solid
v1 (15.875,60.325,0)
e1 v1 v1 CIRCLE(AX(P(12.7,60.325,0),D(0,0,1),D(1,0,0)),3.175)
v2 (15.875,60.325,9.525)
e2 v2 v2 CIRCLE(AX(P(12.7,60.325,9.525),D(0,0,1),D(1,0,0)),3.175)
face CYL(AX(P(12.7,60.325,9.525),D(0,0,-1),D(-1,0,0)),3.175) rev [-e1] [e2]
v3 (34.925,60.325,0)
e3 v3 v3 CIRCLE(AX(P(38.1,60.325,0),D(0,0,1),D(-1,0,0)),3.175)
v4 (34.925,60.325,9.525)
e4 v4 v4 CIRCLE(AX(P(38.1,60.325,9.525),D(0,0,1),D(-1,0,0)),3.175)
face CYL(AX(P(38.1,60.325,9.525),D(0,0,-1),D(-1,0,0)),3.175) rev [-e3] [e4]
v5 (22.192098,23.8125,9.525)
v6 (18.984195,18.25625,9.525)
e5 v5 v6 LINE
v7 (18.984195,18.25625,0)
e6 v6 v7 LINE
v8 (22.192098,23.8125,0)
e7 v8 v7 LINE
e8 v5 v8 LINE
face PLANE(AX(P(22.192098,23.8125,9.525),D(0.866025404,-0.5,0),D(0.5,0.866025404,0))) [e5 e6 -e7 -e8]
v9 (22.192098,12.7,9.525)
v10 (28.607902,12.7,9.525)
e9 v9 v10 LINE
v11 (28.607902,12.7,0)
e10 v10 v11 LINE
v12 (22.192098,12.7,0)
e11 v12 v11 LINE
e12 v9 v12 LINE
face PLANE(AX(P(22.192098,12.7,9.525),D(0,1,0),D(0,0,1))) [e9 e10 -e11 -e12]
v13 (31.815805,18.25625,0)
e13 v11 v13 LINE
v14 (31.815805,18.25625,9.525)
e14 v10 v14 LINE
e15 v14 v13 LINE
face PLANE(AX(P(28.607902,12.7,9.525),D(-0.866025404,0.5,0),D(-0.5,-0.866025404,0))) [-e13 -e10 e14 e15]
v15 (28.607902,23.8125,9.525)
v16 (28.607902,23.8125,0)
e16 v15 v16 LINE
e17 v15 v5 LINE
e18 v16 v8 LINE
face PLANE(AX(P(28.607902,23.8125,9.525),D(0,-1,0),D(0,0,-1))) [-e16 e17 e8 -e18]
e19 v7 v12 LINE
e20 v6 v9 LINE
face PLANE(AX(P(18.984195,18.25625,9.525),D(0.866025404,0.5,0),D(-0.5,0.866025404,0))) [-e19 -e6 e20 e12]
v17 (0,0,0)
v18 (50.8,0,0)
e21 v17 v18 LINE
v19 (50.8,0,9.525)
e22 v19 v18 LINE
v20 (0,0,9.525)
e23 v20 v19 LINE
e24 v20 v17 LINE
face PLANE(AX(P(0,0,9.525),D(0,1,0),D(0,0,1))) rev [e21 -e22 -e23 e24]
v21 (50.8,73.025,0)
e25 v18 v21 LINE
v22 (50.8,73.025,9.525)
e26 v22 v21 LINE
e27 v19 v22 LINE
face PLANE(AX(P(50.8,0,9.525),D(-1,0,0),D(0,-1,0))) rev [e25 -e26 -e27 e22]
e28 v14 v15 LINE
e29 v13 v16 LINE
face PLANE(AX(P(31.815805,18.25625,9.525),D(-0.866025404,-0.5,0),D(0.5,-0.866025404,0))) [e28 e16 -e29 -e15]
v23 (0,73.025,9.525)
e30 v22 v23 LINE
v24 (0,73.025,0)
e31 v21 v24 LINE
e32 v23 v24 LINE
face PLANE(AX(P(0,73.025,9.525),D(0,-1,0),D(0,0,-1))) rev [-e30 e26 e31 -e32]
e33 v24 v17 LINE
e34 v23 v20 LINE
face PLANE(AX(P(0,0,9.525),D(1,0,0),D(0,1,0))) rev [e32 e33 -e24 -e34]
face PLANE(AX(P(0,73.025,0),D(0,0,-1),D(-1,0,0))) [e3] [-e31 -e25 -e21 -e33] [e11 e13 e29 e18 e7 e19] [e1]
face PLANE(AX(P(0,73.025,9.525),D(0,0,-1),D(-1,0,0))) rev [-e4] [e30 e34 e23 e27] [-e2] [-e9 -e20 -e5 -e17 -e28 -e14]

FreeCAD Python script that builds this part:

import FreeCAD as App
import Part
import Sketcher

V = App.Vector
Q = App.Units.Quantity

doc = App.newDocument("Part")
body = doc.addObject("PartDesign::Body", "Body")

sketch1 = doc.addObject("Sketcher::SketchObject", "Sketch")
body.addObject(sketch1)
sketch1.AttachmentSupport = (doc.XY_Plane, [""])
sketch1.MapMode = "FlatFace"
sketch1.addGeometry([
    Part.LineSegment(V(0, 73, 0), V(0, 0, 0)),
    Part.LineSegment(V(0, 0, 0), V(50.8, 0, 0)),
    Part.LineSegment(V(50.8, 0, 0), V(50.8, 73, 0)),
    Part.LineSegment(V(50.8, 73, 0), V(0, 73, 0)),
    Part.LineSegment(V(28.6, 23.8, 0), V(31.8, 18.3, 0)),
    Part.LineSegment(V(31.8, 18.3, 0), V(28.6, 12.7, 0)),
    Part.LineSegment(V(28.6, 12.7, 0), V(22.2, 12.7, 0)),
    Part.LineSegment(V(22.2, 12.7, 0), V(19, 18.3, 0)),
    Part.LineSegment(V(19, 18.3, 0), V(22.2, 23.8, 0)),
    Part.LineSegment(V(22.2, 23.8, 0), V(28.6, 23.8, 0)),
    Part.Circle(V(12.7, 60.3, 0), V(0, 0, 1), 3.2),
    Part.Circle(V(38.1, 60.3, 0), V(0, 0, 1), 3.2),
], False)
sketch1.addConstraint([
    Sketcher.Constraint("Coincident", 0, 2, 1, 1),
    Sketcher.Constraint("Coincident", 1, 2, 2, 1),
    Sketcher.Constraint("Coincident", 2, 2, 3, 1),
    Sketcher.Constraint("Coincident", 3, 2, 0, 1),
    Sketcher.Constraint("Coincident", 4, 2, 5, 1),
    Sketcher.Constraint("Coincident", 5, 2, 6, 1),
    Sketcher.Constraint("Coincident", 6, 2, 7, 1),
    Sketcher.Constraint("Coincident", 7, 2, 8, 1),
    Sketcher.Constraint("Coincident", 8, 2, 9, 1),
    Sketcher.Constraint("Coincident", 9, 2, 4, 1),
    Sketcher.Constraint("Vertical", 0),
    Sketcher.Constraint("Horizontal", 1),
    Sketcher.Constraint("Vertical", 2),
    Sketcher.Constraint("Horizontal", 3),
    Sketcher.Constraint("Horizontal", 6),
    Sketcher.Constraint("Horizontal", 9),
    Sketcher.Constraint("Coincident", 0, 2, -1, 1),
    Sketcher.Constraint("Equal", 10, 11),
    Sketcher.Constraint("Parallel", 4, 7),
    Sketcher.Constraint("Parallel", 5, 8),
    Sketcher.Constraint("Horizontal", 10, 3, 11, 3),
    Sketcher.Constraint("Horizontal", 4, 2, 7, 2),
    Sketcher.Constraint("Vertical", 6, 2, 8, 2),
    Sketcher.Constraint("Vertical", 5, 2, 9, 2),
    Sketcher.Constraint("Diameter", 10, Q("0.25 in")),
    Sketcher.Constraint("DistanceX", 1, 1, 1, 2, Q("2 in")),
    Sketcher.Constraint("Angle", 4, Q("-60 deg")),
    Sketcher.Constraint("DistanceX", 10, 3, 11, 3, Q("1 in")),
    Sketcher.Constraint("DistanceX", -1, 1, 10, 3, Q("0.5 in")),
    Sketcher.Constraint("DistanceY", -1, 1, 5, 2, Q("0.5 in")),
    Sketcher.Constraint("DistanceY", 11, 3, 2, 2, Q("0.5 in")),
    Sketcher.Constraint("DistanceY", 0, 2, 0, 1, Q("2.875 in")),
    Sketcher.Constraint("DistanceY", -1, 1, 4, 2, Q("0.71875 in")),
    Sketcher.Constraint("DistanceX", 6, 2, 6, 1, Q("6.415805 mm")),
    Sketcher.Constraint("DistanceX", -1, 1, 4, 2, Q("31.815805 mm")),
])
pad1 = doc.addObject("PartDesign::Pad", "Pad")
body.addObject(pad1)
pad1.Profile = sketch1
pad1.Length = Q("0.375 in")

doc.recompute()
